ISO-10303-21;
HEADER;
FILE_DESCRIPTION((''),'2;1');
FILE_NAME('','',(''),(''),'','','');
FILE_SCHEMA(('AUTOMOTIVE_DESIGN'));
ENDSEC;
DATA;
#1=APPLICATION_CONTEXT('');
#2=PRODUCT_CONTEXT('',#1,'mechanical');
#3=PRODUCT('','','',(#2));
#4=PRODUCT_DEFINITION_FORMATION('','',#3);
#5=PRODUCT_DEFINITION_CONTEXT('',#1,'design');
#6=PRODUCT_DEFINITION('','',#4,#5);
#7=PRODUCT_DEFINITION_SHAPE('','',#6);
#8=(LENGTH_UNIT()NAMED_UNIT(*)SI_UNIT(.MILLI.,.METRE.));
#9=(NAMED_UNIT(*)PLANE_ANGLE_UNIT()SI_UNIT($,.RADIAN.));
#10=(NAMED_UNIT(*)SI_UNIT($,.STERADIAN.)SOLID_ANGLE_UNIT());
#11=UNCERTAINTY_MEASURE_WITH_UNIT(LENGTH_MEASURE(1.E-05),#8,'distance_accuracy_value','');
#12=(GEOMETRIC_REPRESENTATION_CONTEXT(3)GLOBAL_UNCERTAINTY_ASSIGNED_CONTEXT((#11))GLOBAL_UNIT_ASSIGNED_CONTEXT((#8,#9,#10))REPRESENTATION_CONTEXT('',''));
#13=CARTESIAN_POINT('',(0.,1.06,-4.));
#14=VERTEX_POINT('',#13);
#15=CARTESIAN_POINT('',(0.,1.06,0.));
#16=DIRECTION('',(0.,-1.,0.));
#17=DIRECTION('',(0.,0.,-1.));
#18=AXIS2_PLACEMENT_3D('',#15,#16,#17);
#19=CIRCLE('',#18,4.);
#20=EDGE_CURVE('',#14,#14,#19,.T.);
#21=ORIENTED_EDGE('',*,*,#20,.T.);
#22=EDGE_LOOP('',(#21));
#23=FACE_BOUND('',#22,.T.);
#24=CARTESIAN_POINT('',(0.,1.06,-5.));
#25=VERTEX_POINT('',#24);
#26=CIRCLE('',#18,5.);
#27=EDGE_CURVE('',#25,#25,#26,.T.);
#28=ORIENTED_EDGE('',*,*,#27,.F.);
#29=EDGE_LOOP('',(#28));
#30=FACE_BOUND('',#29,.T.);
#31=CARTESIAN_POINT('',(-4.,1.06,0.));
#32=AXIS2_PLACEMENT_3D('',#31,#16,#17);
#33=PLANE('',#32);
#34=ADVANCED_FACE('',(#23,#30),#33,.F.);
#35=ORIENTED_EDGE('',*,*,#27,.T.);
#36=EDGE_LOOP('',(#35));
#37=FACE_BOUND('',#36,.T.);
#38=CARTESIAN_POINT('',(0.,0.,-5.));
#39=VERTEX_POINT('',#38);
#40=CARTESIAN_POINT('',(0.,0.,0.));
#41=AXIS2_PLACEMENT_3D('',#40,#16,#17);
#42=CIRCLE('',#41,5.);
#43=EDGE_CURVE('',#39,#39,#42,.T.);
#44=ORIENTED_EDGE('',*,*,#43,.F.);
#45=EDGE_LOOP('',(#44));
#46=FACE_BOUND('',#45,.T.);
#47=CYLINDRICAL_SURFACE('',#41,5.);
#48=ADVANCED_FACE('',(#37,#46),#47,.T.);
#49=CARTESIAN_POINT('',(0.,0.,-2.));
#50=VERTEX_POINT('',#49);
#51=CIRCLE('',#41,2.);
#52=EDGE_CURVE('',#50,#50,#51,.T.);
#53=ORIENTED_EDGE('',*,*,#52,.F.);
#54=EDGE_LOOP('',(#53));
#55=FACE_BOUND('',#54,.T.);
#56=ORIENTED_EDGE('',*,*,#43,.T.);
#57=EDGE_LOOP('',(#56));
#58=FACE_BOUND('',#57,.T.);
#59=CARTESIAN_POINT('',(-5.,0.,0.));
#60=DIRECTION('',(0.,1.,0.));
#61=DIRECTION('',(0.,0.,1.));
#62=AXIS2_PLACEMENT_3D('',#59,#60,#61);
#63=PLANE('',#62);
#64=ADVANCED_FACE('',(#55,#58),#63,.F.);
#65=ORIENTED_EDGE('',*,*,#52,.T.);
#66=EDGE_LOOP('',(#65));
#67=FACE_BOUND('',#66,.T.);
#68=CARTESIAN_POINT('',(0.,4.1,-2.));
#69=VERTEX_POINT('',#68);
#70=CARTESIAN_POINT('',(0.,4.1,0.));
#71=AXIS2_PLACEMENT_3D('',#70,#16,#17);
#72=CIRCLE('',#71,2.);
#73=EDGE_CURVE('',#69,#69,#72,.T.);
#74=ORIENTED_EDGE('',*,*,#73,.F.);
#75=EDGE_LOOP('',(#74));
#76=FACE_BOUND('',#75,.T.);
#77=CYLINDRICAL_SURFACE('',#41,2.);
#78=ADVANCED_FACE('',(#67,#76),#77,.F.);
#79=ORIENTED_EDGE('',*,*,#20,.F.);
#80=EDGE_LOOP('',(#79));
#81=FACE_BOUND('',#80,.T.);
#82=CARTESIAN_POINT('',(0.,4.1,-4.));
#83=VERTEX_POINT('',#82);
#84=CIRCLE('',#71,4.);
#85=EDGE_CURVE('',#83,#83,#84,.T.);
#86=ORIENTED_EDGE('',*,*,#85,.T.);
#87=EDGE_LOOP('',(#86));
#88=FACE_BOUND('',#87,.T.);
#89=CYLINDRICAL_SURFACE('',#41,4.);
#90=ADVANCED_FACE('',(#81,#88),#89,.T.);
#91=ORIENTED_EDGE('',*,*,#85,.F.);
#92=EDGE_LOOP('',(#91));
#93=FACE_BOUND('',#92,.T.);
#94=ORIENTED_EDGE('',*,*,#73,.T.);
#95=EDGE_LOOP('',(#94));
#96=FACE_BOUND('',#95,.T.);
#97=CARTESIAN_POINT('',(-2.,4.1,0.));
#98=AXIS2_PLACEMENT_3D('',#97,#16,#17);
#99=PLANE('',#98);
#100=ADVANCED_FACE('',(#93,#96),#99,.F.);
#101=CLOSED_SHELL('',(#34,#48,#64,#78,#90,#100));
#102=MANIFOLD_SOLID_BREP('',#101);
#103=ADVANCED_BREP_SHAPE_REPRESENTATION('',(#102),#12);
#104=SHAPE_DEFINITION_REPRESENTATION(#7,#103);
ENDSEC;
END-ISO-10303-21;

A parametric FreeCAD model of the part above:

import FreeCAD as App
import Part
import Sketcher

doc = App.newDocument("Part")
body = doc.addObject("PartDesign::Body", "Body")

sketch1 = body.newObject("Sketcher::SketchObject", "Sketch")
sketch1.AttachmentSupport = (doc.getObject("XY_Plane"), [""])
sketch1.MapMode = "FlatFace"
sketch1.addGeometry([
    Part.LineSegment(App.Vector(-5, 0, 0), App.Vector(-2, 0, 0)),
    Part.LineSegment(App.Vector(-2, 0, 0), App.Vector(-2, 4.1, 0)),
    Part.LineSegment(App.Vector(-2, 4.1, 0), App.Vector(-4, 4.1, 0)),
    Part.LineSegment(App.Vector(-4, 4.1, 0), App.Vector(-4, 1.1, 0)),
    Part.LineSegment(App.Vector(-4, 1.1, 0), App.Vector(-5, 1.1, 0)),
    Part.LineSegment(App.Vector(-5, 1.1, 0), App.Vector(-5, 0, 0)),
], False)
sketch1.addConstraint([
    Sketcher.Constraint("Coincident", 0, 2, 1, 1),
    Sketcher.Constraint("Coincident", 1, 2, 2, 1),
    Sketcher.Constraint("Coincident", 2, 2, 3, 1),
    Sketcher.Constraint("Coincident", 3, 2, 4, 1),
    Sketcher.Constraint("Coincident", 4, 2, 5, 1),
    Sketcher.Constraint("Coincident", 5, 2, 0, 1),
    Sketcher.Constraint("Horizontal", 0),
    Sketcher.Constraint("Vertical", 1),
    Sketcher.Constraint("Horizontal", 2),
    Sketcher.Constraint("Vertical", 3),
    Sketcher.Constraint("Horizontal", 4),
    Sketcher.Constraint("Vertical", 5),
    Sketcher.Constraint("PointOnObject", 0, 2, -1),
    Sketcher.Constraint("DistanceX", 0, 1, 0, 2, 3.0),
    Sketcher.Constraint("DistanceX", 2, 2, 2, 1, 2.0),
    Sketcher.Constraint("DistanceY", 1, 1, 1, 2, 4.1),
    Sketcher.Constraint("DistanceX", 0, 2, -1, 1, 2.0),
    Sketcher.Constraint("DistanceY", 3, 2, 3, 1, 3.04),
])
revolution = body.newObject("PartDesign::Revolution", "Revolution")
revolution.Profile = sketch1
revolution.ReferenceAxis = (sketch1, ["V_Axis"])
revolution.Angle = 360

doc.recompute()
